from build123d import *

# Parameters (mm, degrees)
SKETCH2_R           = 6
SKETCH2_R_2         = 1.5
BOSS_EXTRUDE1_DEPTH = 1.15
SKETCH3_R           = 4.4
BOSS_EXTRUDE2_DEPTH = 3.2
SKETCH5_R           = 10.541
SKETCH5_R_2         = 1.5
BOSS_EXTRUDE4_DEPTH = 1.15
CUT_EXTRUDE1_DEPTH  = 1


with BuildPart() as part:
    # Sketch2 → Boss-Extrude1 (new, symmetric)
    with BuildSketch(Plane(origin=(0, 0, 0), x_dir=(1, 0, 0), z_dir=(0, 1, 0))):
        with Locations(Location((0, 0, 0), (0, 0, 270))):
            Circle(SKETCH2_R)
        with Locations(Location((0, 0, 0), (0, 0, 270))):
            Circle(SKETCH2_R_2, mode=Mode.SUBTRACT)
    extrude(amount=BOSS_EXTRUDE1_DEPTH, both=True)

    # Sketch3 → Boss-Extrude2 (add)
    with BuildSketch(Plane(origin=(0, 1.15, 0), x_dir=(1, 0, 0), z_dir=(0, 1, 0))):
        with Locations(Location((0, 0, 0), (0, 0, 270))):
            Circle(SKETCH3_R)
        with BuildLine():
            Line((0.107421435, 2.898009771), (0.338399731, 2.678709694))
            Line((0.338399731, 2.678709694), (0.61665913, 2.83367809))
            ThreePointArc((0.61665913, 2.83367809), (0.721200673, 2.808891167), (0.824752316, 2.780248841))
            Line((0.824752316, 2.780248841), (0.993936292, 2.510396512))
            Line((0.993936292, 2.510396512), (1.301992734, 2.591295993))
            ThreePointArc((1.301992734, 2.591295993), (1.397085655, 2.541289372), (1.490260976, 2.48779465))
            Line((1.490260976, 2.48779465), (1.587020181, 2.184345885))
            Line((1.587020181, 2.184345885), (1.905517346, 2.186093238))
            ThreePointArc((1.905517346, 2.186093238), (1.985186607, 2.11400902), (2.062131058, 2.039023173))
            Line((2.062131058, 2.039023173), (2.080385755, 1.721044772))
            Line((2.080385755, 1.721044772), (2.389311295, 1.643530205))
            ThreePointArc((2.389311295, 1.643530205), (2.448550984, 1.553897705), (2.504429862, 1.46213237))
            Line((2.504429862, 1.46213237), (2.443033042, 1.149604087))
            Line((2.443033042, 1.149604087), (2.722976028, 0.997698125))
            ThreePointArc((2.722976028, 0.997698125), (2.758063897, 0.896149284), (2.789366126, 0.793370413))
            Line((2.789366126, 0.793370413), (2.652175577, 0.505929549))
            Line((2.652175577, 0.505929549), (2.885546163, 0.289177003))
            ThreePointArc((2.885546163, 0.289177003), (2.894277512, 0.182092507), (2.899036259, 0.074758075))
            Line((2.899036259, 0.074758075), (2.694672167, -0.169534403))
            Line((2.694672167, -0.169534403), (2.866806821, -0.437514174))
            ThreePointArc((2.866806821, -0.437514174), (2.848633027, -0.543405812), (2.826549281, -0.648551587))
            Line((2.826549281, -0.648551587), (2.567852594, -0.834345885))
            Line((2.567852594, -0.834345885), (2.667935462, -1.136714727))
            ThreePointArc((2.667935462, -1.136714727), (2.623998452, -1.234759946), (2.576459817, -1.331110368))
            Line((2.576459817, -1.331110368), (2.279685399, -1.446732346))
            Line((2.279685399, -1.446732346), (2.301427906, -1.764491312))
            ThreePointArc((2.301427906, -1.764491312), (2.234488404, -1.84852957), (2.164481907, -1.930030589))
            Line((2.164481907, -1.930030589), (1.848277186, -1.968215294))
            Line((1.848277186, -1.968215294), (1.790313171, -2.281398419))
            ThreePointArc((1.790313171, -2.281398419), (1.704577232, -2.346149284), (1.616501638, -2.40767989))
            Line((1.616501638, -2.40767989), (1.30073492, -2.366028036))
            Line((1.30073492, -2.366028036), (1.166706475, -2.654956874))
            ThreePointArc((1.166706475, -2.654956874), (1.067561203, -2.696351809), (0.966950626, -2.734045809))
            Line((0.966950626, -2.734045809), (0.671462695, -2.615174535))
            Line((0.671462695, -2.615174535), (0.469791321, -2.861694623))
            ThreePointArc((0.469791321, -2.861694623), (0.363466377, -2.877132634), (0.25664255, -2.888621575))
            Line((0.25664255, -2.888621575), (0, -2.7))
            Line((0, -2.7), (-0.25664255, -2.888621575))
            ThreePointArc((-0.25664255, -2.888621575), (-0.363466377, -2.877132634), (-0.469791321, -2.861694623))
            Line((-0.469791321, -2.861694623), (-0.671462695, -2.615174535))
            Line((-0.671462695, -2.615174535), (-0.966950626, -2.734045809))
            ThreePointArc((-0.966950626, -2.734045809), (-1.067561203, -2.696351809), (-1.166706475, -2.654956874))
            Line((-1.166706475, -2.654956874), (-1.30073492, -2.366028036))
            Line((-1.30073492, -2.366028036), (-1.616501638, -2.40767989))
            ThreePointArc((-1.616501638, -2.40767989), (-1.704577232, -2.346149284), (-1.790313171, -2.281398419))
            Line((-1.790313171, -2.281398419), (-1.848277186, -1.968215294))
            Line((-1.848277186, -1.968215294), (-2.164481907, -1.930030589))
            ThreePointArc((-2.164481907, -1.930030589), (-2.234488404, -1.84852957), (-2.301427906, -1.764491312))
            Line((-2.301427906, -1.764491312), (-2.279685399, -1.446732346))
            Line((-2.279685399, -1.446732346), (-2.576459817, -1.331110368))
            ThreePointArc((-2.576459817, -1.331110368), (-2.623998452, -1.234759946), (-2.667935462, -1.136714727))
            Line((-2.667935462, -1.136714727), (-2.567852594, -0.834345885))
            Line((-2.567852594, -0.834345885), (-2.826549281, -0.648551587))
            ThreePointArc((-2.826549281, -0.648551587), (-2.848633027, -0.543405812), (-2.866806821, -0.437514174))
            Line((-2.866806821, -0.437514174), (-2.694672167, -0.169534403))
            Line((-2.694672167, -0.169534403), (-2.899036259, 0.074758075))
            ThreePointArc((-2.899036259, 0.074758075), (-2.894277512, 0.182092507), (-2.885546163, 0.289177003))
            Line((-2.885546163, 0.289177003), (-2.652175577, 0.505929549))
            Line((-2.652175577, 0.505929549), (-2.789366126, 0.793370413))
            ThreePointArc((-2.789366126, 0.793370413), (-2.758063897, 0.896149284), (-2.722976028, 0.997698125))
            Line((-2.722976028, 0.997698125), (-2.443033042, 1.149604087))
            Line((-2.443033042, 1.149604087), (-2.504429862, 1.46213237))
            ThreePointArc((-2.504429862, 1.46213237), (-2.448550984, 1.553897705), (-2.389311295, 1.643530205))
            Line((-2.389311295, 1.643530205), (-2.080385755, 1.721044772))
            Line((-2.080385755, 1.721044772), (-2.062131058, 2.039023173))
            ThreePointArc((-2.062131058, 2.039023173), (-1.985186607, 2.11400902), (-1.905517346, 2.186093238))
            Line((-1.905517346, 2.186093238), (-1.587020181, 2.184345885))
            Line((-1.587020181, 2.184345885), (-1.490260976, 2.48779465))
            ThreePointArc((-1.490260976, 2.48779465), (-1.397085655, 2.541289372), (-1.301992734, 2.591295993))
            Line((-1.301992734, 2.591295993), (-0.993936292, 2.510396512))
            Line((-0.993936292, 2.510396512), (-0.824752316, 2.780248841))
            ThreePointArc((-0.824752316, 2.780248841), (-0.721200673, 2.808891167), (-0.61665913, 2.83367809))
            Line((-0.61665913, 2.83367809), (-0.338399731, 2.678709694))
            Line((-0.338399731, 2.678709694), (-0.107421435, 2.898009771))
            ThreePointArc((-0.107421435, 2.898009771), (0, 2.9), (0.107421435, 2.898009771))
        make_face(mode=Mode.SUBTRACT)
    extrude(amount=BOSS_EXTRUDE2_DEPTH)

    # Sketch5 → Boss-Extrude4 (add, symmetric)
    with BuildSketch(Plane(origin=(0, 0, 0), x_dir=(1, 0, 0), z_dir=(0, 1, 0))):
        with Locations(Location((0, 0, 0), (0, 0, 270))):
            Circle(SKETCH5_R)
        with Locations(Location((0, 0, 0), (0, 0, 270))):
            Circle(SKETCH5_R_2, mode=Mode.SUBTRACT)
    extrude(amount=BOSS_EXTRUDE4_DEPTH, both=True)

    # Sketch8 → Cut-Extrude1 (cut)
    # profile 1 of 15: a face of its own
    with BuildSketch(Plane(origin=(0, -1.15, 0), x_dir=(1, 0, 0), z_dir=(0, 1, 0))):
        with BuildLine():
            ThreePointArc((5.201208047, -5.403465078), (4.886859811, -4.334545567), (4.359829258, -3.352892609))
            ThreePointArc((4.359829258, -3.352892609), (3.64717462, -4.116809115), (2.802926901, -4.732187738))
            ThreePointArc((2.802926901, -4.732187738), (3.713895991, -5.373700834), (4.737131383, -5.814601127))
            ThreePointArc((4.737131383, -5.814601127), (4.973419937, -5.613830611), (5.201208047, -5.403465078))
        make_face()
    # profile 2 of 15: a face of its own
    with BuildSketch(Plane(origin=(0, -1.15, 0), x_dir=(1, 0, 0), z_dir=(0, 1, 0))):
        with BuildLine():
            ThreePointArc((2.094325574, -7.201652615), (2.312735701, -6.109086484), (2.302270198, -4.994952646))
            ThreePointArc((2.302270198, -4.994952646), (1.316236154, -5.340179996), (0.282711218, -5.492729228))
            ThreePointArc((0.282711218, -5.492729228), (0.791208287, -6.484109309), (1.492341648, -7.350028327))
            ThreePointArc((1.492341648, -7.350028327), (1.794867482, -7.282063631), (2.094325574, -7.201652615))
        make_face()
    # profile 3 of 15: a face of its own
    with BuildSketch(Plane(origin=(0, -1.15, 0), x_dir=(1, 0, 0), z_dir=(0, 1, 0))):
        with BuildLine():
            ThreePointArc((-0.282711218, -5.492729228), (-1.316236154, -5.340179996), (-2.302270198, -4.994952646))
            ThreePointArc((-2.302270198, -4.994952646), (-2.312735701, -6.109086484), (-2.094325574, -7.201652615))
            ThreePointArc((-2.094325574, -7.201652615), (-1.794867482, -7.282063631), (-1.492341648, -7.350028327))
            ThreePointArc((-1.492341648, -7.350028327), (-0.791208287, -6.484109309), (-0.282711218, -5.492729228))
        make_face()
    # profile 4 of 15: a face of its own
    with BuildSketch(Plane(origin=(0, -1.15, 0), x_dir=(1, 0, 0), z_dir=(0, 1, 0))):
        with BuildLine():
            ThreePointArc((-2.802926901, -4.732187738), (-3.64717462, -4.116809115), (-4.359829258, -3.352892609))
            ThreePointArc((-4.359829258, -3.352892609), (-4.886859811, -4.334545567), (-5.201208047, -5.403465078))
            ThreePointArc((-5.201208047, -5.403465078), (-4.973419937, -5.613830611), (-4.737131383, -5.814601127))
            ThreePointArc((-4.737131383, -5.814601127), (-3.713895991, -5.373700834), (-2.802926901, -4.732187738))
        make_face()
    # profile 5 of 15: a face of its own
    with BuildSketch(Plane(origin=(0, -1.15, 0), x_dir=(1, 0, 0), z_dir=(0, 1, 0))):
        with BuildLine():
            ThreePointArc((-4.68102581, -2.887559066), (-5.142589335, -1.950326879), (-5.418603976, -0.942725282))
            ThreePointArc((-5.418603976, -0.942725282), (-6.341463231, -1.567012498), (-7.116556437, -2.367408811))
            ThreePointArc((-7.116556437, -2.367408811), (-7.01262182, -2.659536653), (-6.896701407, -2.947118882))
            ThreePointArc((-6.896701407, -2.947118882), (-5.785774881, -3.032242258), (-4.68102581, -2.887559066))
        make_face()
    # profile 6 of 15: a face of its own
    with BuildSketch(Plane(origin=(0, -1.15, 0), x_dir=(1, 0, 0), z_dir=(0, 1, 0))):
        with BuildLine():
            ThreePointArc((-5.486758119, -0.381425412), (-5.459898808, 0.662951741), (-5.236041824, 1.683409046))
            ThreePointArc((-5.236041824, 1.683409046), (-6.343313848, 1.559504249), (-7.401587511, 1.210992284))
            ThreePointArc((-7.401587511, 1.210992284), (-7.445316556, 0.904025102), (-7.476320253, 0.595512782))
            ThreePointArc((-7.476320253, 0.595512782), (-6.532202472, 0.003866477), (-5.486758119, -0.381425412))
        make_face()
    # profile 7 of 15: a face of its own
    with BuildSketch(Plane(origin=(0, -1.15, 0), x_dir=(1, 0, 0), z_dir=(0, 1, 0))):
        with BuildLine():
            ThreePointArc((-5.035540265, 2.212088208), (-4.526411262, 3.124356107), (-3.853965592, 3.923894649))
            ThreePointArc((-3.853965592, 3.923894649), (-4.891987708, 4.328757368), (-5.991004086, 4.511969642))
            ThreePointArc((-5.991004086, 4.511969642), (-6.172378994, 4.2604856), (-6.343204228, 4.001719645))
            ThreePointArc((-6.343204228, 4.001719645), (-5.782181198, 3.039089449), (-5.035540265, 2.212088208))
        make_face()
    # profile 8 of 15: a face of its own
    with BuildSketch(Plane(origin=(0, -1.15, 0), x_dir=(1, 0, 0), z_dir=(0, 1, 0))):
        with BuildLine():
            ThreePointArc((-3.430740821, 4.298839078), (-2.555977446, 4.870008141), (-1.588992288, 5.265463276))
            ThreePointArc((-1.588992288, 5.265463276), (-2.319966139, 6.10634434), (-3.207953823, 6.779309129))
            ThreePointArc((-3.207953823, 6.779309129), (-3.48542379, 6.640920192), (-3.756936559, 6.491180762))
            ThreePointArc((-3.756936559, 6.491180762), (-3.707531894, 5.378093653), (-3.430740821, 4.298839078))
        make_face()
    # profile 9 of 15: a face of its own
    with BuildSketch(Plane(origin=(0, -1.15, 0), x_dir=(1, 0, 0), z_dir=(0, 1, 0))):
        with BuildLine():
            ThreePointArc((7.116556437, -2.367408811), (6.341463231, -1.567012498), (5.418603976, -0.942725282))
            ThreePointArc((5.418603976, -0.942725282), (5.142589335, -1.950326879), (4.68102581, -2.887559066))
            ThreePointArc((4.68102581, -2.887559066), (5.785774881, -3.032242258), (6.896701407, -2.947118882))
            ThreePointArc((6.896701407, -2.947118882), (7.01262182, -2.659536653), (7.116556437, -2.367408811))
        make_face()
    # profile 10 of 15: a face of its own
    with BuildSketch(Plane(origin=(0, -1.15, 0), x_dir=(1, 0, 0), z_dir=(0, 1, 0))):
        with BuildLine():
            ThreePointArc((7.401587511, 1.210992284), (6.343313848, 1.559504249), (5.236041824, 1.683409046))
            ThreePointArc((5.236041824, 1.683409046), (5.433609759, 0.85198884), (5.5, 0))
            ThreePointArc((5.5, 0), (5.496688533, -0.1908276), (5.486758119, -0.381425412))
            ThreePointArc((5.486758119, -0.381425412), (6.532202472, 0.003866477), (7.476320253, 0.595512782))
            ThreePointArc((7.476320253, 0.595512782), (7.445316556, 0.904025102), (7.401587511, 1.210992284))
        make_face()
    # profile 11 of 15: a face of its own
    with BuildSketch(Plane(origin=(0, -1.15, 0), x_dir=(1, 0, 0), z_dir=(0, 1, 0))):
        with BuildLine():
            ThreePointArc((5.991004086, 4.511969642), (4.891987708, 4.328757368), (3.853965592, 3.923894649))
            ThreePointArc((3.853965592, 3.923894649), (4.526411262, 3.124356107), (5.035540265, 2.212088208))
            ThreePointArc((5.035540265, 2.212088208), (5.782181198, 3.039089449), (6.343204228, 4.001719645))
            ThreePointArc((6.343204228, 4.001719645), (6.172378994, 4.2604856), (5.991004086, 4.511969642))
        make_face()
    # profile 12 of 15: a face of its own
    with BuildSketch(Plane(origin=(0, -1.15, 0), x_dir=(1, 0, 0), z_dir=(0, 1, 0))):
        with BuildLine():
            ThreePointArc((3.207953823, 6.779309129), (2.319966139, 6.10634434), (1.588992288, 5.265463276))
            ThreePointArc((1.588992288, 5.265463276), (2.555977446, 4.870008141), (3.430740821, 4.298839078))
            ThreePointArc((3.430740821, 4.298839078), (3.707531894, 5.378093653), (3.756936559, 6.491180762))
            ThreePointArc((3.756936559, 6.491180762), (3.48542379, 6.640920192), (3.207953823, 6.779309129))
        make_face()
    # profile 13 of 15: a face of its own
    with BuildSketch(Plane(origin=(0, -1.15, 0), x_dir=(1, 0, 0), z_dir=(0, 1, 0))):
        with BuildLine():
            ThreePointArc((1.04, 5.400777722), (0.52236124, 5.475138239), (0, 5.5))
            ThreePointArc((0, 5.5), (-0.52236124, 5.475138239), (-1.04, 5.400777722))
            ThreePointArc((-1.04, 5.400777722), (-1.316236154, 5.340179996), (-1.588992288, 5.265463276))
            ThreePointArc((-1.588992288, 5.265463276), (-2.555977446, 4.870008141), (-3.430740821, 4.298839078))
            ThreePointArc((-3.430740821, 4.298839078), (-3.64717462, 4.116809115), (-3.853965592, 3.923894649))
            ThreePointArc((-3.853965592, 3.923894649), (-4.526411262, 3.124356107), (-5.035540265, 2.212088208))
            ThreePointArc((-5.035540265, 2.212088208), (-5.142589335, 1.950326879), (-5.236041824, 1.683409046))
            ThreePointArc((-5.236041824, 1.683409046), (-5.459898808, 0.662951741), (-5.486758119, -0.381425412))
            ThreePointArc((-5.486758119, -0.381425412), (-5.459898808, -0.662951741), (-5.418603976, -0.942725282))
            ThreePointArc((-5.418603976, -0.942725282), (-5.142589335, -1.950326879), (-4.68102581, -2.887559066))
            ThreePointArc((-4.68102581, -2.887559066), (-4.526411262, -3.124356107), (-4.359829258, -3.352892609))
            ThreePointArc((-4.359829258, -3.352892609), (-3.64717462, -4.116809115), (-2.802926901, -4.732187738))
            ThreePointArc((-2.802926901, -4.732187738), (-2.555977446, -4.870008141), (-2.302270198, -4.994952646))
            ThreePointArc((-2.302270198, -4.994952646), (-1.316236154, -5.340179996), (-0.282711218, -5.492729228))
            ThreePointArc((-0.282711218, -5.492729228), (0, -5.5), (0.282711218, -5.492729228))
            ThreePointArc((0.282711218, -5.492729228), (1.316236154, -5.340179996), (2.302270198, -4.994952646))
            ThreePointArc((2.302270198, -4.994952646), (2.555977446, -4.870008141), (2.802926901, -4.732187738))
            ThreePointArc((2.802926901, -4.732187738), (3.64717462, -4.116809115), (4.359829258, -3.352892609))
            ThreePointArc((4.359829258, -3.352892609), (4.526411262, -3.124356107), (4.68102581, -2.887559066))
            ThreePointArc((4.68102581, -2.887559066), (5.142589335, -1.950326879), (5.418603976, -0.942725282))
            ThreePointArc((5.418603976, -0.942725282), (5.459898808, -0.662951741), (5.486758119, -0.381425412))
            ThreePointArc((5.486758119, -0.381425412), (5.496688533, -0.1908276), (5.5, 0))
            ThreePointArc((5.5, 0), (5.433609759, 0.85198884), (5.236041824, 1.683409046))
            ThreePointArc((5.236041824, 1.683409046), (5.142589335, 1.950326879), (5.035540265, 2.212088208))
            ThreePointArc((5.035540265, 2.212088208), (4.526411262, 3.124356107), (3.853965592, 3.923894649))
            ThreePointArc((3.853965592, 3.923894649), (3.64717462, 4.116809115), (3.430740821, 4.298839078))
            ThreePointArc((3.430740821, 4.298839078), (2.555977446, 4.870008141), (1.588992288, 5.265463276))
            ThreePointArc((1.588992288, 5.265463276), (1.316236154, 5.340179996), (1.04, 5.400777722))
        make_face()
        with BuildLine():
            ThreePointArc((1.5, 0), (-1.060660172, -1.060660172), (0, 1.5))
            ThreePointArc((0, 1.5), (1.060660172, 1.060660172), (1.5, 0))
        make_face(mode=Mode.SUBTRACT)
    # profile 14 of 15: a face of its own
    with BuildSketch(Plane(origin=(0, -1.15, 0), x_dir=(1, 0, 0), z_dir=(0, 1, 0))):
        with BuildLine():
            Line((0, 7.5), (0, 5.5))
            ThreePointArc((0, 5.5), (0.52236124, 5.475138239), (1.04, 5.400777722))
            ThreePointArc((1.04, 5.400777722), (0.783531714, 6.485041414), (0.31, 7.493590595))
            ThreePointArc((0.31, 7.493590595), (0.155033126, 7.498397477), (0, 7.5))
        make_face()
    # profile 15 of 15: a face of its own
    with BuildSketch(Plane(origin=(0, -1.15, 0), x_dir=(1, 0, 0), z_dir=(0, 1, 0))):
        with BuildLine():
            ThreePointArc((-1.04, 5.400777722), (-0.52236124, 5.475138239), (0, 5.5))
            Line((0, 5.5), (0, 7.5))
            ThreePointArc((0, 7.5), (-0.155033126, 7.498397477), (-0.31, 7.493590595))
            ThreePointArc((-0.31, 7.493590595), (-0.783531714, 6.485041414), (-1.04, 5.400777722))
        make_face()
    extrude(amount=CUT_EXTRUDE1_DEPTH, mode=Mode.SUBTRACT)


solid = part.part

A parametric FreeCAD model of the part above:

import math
import FreeCAD as App
import Part
import Sketcher

V = App.Vector
Q = App.Units.Quantity

doc = App.newDocument("Part")
body = doc.addObject("PartDesign::Body", "Body")

sketch1 = body.newObject("Sketcher::SketchObject", "Sketch")
sketch1.AttachmentSupport = (doc.getObject("XZ_Plane"), [""])
sketch1.MapMode = "FlatFace"
sketch1.addGeometry([
    Part.Circle(V(0, 0, 0), V(0, 0, 1), 6),
    Part.Circle(V(0, 0, 0), V(0, 0, 1), 1.5),
], False)
sketch1.addConstraint([
    Sketcher.Constraint("Coincident", 0, 3, -1, 1),
    Sketcher.Constraint("Coincident", 1, 3, -1, 1),
    Sketcher.Constraint("Diameter", 0, Q("12 mm")),
    Sketcher.Constraint("Diameter", 1, Q("3 mm")),
])
pad1 = body.newObject("PartDesign::Pad", "Pad")
pad1.Profile = sketch1
pad1.Length = 2.3
pad1.Midplane = True

sketch2 = body.newObject("Sketcher::SketchObject", "Sketch001")
sketch2.AttachmentSupport = (doc.getObject("XZ_Plane"), [""])
sketch2.MapMode = "FlatFace"
sketch2.AttachmentOffset = App.Placement(V(0, 0, -1.15), App.Rotation())
sketch2.addGeometry([
    Part.Circle(V(0, 0, 0), V(0, 0, 1), 4.4),
    Part.ArcOfCircle(Part.Circle(V(0, 0, 0), V(0, 0, 1), 2.9), math.radians(-92.12), math.radians(-87.88)),
    Part.LineSegment(V(0.11, -2.9, 0), V(0.34, -2.68, 0)),
    Part.LineSegment(V(0.34, -2.68, 0), V(0.62, -2.83, 0)),
    Part.ArcOfCircle(Part.Circle(V(0, 0, 0), V(0, 0, 1), 2.9), math.radians(-77.72), math.radians(-73.48)),
    Part.LineSegment(V(0.82, -2.78, 0), V(0.99, -2.51, 0)),
    Part.LineSegment(V(0.99, -2.51, 0), V(1.3, -2.59, 0)),
    Part.ArcOfCircle(Part.Circle(V(0, 0, 0), V(0, 0, 1), 2.9), math.radians(-63.32), math.radians(-59.08)),
    Part.LineSegment(V(1.49, -2.49, 0), V(1.59, -2.18, 0)),
    Part.LineSegment(V(1.59, -2.18, 0), V(1.91, -2.19, 0)),
    Part.ArcOfCircle(Part.Circle(V(0, 0, 0), V(0, 0, 1), 2.9), math.radians(-48.92), math.radians(-44.68)),
    Part.LineSegment(V(2.06, -2.04, 0), V(2.08, -1.72, 0)),
    Part.LineSegment(V(2.08, -1.72, 0), V(2.39, -1.64, 0)),
    Part.ArcOfCircle(Part.Circle(V(0, 0, 0), V(0, 0, 1), 2.9), math.radians(-34.52), math.radians(-30.28)),
    Part.LineSegment(V(2.5, -1.46, 0), V(2.44, -1.15, 0)),
    Part.LineSegment(V(2.44, -1.15, 0), V(2.72, -1, 0)),
    Part.ArcOfCircle(Part.Circle(V(0, 0, 0), V(0, 0, 1), 2.9), math.radians(-20.12), math.radians(-15.88)),
    Part.LineSegment(V(2.79, -0.79, 0), V(2.65, -0.51, 0)),
    Part.LineSegment(V(2.65, -0.51, 0), V(2.89, -0.29, 0)),
    Part.ArcOfCircle(Part.Circle(V(0, 0, 0), V(0, 0, 1), 2.9), math.radians(-5.72), math.radians(-1.48)),
    Part.LineSegment(V(2.9, -0.07, 0), V(2.69, 0.17, 0)),
    Part.LineSegment(V(2.69, 0.17, 0), V(2.87, 0.44, 0)),
    Part.ArcOfCircle(Part.Circle(V(0, 0, 0), V(0, 0, 1), 2.9), math.radians(8.68), math.radians(12.92)),
    Part.LineSegment(V(2.83, 0.65, 0), V(2.57, 0.83, 0)),
    Part.LineSegment(V(2.57, 0.83, 0), V(2.67, 1.14, 0)),
    Part.ArcOfCircle(Part.Circle(V(0, 0, 0), V(0, 0, 1), 2.9), math.radians(23.08), math.radians(27.32)),
    Part.LineSegment(V(2.58, 1.33, 0), V(2.28, 1.45, 0)),
    Part.LineSegment(V(2.28, 1.45, 0), V(2.3, 1.76, 0)),
    Part.ArcOfCircle(Part.Circle(V(0, 0, 0), V(0, 0, 1), 2.9), math.radians(37.48), math.radians(41.72)),
    Part.LineSegment(V(2.16, 1.93, 0), V(1.85, 1.97, 0)),
    Part.LineSegment(V(1.85, 1.97, 0), V(1.79, 2.28, 0)),
    Part.ArcOfCircle(Part.Circle(V(0, 0, 0), V(0, 0, 1), 2.9), math.radians(51.88), math.radians(56.12)),
    Part.LineSegment(V(1.62, 2.41, 0), V(1.3, 2.37, 0)),
    Part.LineSegment(V(1.3, 2.37, 0), V(1.17, 2.65, 0)),
    Part.ArcOfCircle(Part.Circle(V(0, 0, 0), V(0, 0, 1), 2.9), math.radians(66.28), math.radians(70.52)),
    Part.LineSegment(V(0.97, 2.73, 0), V(0.67, 2.62, 0)),
    Part.LineSegment(V(0.67, 2.62, 0), V(0.47, 2.86, 0)),
    Part.ArcOfCircle(Part.Circle(V(0, 0, 0), V(0, 0, 1), 2.9), math.radians(80.68), math.radians(84.92)),
    Part.LineSegment(V(0.26, 2.89, 0), V(0, 2.7, 0)),
    Part.LineSegment(V(0, 2.7, 0), V(-0.26, 2.89, 0)),
    Part.ArcOfCircle(Part.Circle(V(0, 0, 0), V(0, 0, 1), 2.9), math.radians(95.08), math.radians(99.32)),
    Part.LineSegment(V(-0.47, 2.86, 0), V(-0.67, 2.62, 0)),
    Part.LineSegment(V(-0.67, 2.62, 0), V(-0.97, 2.73, 0)),
    Part.ArcOfCircle(Part.Circle(V(0, 0, 0), V(0, 0, 1), 2.9), math.radians(109.48), math.radians(113.72)),
    Part.LineSegment(V(-1.17, 2.65, 0), V(-1.3, 2.37, 0)),
    Part.LineSegment(V(-1.3, 2.37, 0), V(-1.62, 2.41, 0)),
    Part.ArcOfCircle(Part.Circle(V(0, 0, 0), V(0, 0, 1), 2.9), math.radians(123.88), math.radians(128.12)),
    Part.LineSegment(V(-1.79, 2.28, 0), V(-1.85, 1.97, 0)),
    Part.LineSegment(V(-1.85, 1.97, 0), V(-2.16, 1.93, 0)),
    Part.ArcOfCircle(Part.Circle(V(0, 0, 0), V(0, 0, 1), 2.9), math.radians(138.28), math.radians(142.52)),
    Part.LineSegment(V(-2.3, 1.76, 0), V(-2.28, 1.45, 0)),
    Part.LineSegment(V(-2.28, 1.45, 0), V(-2.58, 1.33, 0)),
    Part.ArcOfCircle(Part.Circle(V(0, 0, 0), V(0, 0, 1), 2.9), math.radians(152.68), math.radians(156.92)),
    Part.LineSegment(V(-2.67, 1.14, 0), V(-2.57, 0.83, 0)),
    Part.LineSegment(V(-2.57, 0.83, 0), V(-2.83, 0.65, 0)),
    Part.ArcOfCircle(Part.Circle(V(0, 0, 0), V(0, 0, 1), 2.9), math.radians(167.08), math.radians(171.32)),
    Part.LineSegment(V(-2.87, 0.44, 0), V(-2.69, 0.17, 0)),
    Part.LineSegment(V(-2.69, 0.17, 0), V(-2.9, -0.07, 0)),
    Part.ArcOfCircle(Part.Circle(V(0, 0, 0), V(0, 0, 1), 2.9), math.radians(-178.52), math.radians(-174.28)),
    Part.LineSegment(V(-2.89, -0.29, 0), V(-2.65, -0.51, 0)),
    Part.LineSegment(V(-2.65, -0.51, 0), V(-2.79, -0.79, 0)),
    Part.ArcOfCircle(Part.Circle(V(0, 0, 0), V(0, 0, 1), 2.9), math.radians(-164.12), math.radians(-159.88)),
    Part.LineSegment(V(-2.72, -1, 0), V(-2.44, -1.15, 0)),
    Part.LineSegment(V(-2.44, -1.15, 0), V(-2.5, -1.46, 0)),
    Part.ArcOfCircle(Part.Circle(V(0, 0, 0), V(0, 0, 1), 2.9), math.radians(-149.72), math.radians(-145.48)),
    Part.LineSegment(V(-2.39, -1.64, 0), V(-2.08, -1.72, 0)),
    Part.LineSegment(V(-2.08, -1.72, 0), V(-2.06, -2.04, 0)),
    Part.ArcOfCircle(Part.Circle(V(0, 0, 0), V(0, 0, 1), 2.9), math.radians(-135.32), math.radians(-131.08)),
    Part.LineSegment(V(-1.91, -2.19, 0), V(-1.59, -2.18, 0)),
    Part.LineSegment(V(-1.59, -2.18, 0), V(-1.49, -2.49, 0)),
    Part.ArcOfCircle(Part.Circle(V(0, 0, 0), V(0, 0, 1), 2.9), math.radians(-120.92), math.radians(-116.68)),
    Part.LineSegment(V(-1.3, -2.59, 0), V(-0.99, -2.51, 0)),
    Part.LineSegment(V(-0.99, -2.51, 0), V(-0.82, -2.78, 0)),
    Part.ArcOfCircle(Part.Circle(V(0, 0, 0), V(0, 0, 1), 2.9), math.radians(-106.52), math.radians(-102.28)),
    Part.LineSegment(V(-0.62, -2.83, 0), V(-0.34, -2.68, 0)),
    Part.LineSegment(V(-0.34, -2.68, 0), V(-0.11, -2.9, 0)),
], False)
sketch2.addConstraint([
    Sketcher.Constraint("Coincident", 1, 2, 2, 1),
    Sketcher.Constraint("Coincident", 2, 2, 3, 1),
    Sketcher.Constraint("Coincident", 3, 2, 4, 1),
    Sketcher.Constraint("Coincident", 4, 2, 5, 1),
    Sketcher.Constraint("Coincident", 5, 2, 6, 1),
    Sketcher.Constraint("Coincident", 6, 2, 7, 1),
    Sketcher.Constraint("Coincident", 7, 2, 8, 1),
    Sketcher.Constraint("Coincident", 8, 2, 9, 1),
    Sketcher.Constraint("Coincident", 9, 2, 10, 1),
    Sketcher.Constraint("Coincident", 10, 2, 11, 1),
    Sketcher.Constraint("Coincident", 11, 2, 12, 1),
    Sketcher.Constraint("Coincident", 12, 2, 13, 1),
    Sketcher.Constraint("Coincident", 13, 2, 14, 1),
    Sketcher.Constraint("Coincident", 14, 2, 15, 1),
    Sketcher.Constraint("Coincident", 15, 2, 16, 1),
    Sketcher.Constraint("Coincident", 16, 2, 17, 1),
    Sketcher.Constraint("Coincident", 17, 2, 18, 1),
    Sketcher.Constraint("Coincident", 18, 2, 19, 1),
    Sketcher.Constraint("Coincident", 19, 2, 20, 1),
    Sketcher.Constraint("Coincident", 20, 2, 21, 1),
    Sketcher.Constraint("Coincident", 21, 2, 22, 1),
    Sketcher.Constraint("Coincident", 22, 2, 23, 1),
    Sketcher.Constraint("Coincident", 23, 2, 24, 1),
    Sketcher.Constraint("Coincident", 24, 2, 25, 1),
    Sketcher.Constraint("Coincident", 25, 2, 26, 1),
    Sketcher.Constraint("Coincident", 26, 2, 27, 1),
    Sketcher.Constraint("Coincident", 27, 2, 28, 1),
    Sketcher.Constraint("Coincident", 28, 2, 29, 1),
    Sketcher.Constraint("Coincident", 29, 2, 30, 1),
    Sketcher.Constraint("Coincident", 30, 2, 31, 1),
    Sketcher.Constraint("Coincident", 31, 2, 32, 1),
    Sketcher.Constraint("Coincident", 32, 2, 33, 1),
    Sketcher.Constraint("Coincident", 33, 2, 34, 1),
    Sketcher.Constraint("Coincident", 34, 2, 35, 1),
    Sketcher.Constraint("Coincident", 35, 2, 36, 1),
    Sketcher.Constraint("Coincident", 36, 2, 37, 1),
    Sketcher.Constraint("Coincident", 37, 2, 38, 1),
    Sketcher.Constraint("Coincident", 38, 2, 39, 1),
    Sketcher.Constraint("Coincident", 39, 2, 40, 1),
    Sketcher.Constraint("Coincident", 40, 2, 41, 1),
    Sketcher.Constraint("Coincident", 41, 2, 42, 1),
    Sketcher.Constraint("Coincident", 42, 2, 43, 1),
    Sketcher.Constraint("Coincident", 43, 2, 44, 1),
    Sketcher.Constraint("Coincident", 44, 2, 45, 1),
    Sketcher.Constraint("Coincident", 45, 2, 46, 1),
    Sketcher.Constraint("Coincident", 46, 2, 47, 1),
    Sketcher.Constraint("Coincident", 47, 2, 48, 1),
    Sketcher.Constraint("Coincident", 48, 2, 49, 1),
    Sketcher.Constraint("Coincident", 49, 2, 50, 1),
    Sketcher.Constraint("Coincident", 50, 2, 51, 1),
    Sketcher.Constraint("Coincident", 51, 2, 52, 1),
    Sketcher.Constraint("Coincident", 52, 2, 53, 1),
    Sketcher.Constraint("Coincident", 53, 2, 54, 1),
    Sketcher.Constraint("Coincident", 54, 2, 55, 1),
    Sketcher.Constraint("Coincident", 55, 2, 56, 1),
    Sketcher.Constraint("Coincident", 56, 2, 57, 1),
    Sketcher.Constraint("Coincident", 57, 2, 58, 1),
    Sketcher.Constraint("Coincident", 58, 2, 59, 1),
    Sketcher.Constraint("Coincident", 59, 2, 60, 1),
    Sketcher.Constraint("Coincident", 60, 2, 61, 1),
    Sketcher.Constraint("Coincident", 61, 2, 62, 1),
    Sketcher.Constraint("Coincident", 62, 2, 63, 1),
    Sketcher.Constraint("Coincident", 63, 2, 64, 1),
    Sketcher.Constraint("Coincident", 64, 2, 65, 1),
    Sketcher.Constraint("Coincident", 65, 2, 66, 1),
    Sketcher.Constraint("Coincident", 66, 2, 67, 1),
    Sketcher.Constraint("Coincident", 67, 2, 68, 1),
    Sketcher.Constraint("Coincident", 68, 2, 69, 1),
    Sketcher.Constraint("Coincident", 69, 2, 70, 1),
    Sketcher.Constraint("Coincident", 70, 2, 71, 1),
    Sketcher.Constraint("Coincident", 71, 2, 72, 1),
    Sketcher.Constraint("Coincident", 72, 2, 73, 1),
    Sketcher.Constraint("Coincident", 73, 2, 74, 1),
    Sketcher.Constraint("Coincident", 74, 2, 75, 1),
    Sketcher.Constraint("Coincident", 75, 2, 1, 1),
    Sketcher.Constraint("Coincident", 0, 3, -1, 1),
    Sketcher.Constraint("Coincident", 1, 3, -1, 1),
    Sketcher.Constraint("Coincident", 4, 3, -1, 1),
    Sketcher.Constraint("Coincident", 7, 3, -1, 1),
    Sketcher.Constraint("Coincident", 10, 3, -1, 1),
    Sketcher.Constraint("Coincident", 13, 3, -1, 1),
    Sketcher.Constraint("Coincident", 16, 3, -1, 1),
    Sketcher.Constraint("Coincident", 19, 3, -1, 1),
    Sketcher.Constraint("Coincident", 22, 3, -1, 1),
    Sketcher.Constraint("Coincident", 25, 3, -1, 1),
    Sketcher.Constraint("Coincident", 28, 3, -1, 1),
    Sketcher.Constraint("Coincident", 31, 3, -1, 1),
    Sketcher.Constraint("Coincident", 34, 3, -1, 1),
    Sketcher.Constraint("Coincident", 37, 3, -1, 1),
    Sketcher.Constraint("Coincident", 40, 3, -1, 1),
    Sketcher.Constraint("Coincident", 43, 3, -1, 1),
    Sketcher.Constraint("Coincident", 46, 3, -1, 1),
    Sketcher.Constraint("Coincident", 49, 3, -1, 1),
    Sketcher.Constraint("Coincident", 52, 3, -1, 1),
    Sketcher.Constraint("Coincident", 55, 3, -1, 1),
    Sketcher.Constraint("Coincident", 58, 3, -1, 1),
    Sketcher.Constraint("Coincident", 61, 3, -1, 1),
    Sketcher.Constraint("Coincident", 64, 3, -1, 1),
    Sketcher.Constraint("Coincident", 67, 3, -1, 1),
    Sketcher.Constraint("Coincident", 70, 3, -1, 1),
    Sketcher.Constraint("Coincident", 73, 3, -1, 1),
    Sketcher.Constraint("Equal", 1, 4),
    Sketcher.Constraint("Equal", 4, 7),
    Sketcher.Constraint("Equal", 7, 10),
    Sketcher.Constraint("Equal", 10, 13),
    Sketcher.Constraint("Equal", 13, 16),
    Sketcher.Constraint("Equal", 16, 19),
    Sketcher.Constraint("Equal", 19, 22),
    Sketcher.Constraint("Equal", 22, 25),
    Sketcher.Constraint("Equal", 25, 28),
    Sketcher.Constraint("Equal", 28, 31),
    Sketcher.Constraint("Equal", 31, 34),
    Sketcher.Constraint("Equal", 34, 37),
    Sketcher.Constraint("Equal", 37, 40),
    Sketcher.Constraint("Equal", 40, 43),
    Sketcher.Constraint("Equal", 43, 46),
    Sketcher.Constraint("Equal", 46, 49),
    Sketcher.Constraint("Equal", 49, 52),
    Sketcher.Constraint("Equal", 52, 55),
    Sketcher.Constraint("Equal", 55, 58),
    Sketcher.Constraint("Equal", 58, 61),
    Sketcher.Constraint("Equal", 61, 64),
    Sketcher.Constraint("Equal", 64, 67),
    Sketcher.Constraint("Equal", 67, 70),
    Sketcher.Constraint("Equal", 70, 73),
    Sketcher.Constraint("Symmetric", 35, 2, 41, 2, -2),
    Sketcher.Constraint("Symmetric", 32, 2, 44, 2, -2),
    Sketcher.Constraint("Symmetric", 29, 2, 47, 2, -2),
    Sketcher.Constraint("Symmetric", 26, 2, 50, 2, -2),
    Sketcher.Constraint("Symmetric", 23, 2, 53, 2, -2),
    Sketcher.Constraint("Symmetric", 20, 2, 56, 2, -2),
    Sketcher.Constraint("Symmetric", 17, 2, 59, 2, -2),
    Sketcher.Constraint("Symmetric", 14, 2, 62, 2, -2),
    Sketcher.Constraint("Symmetric", 11, 2, 65, 2, -2),
    Sketcher.Constraint("Symmetric", 8, 2, 68, 2, -2),
    Sketcher.Constraint("Symmetric", 5, 2, 71, 2, -2),
    Sketcher.Constraint("Symmetric", 2, 2, 74, 2, -2),
    Sketcher.Constraint("PointOnObject", 38, 2, -2),
    Sketcher.Constraint("Horizontal", 37, 2, 39, 2),
    Sketcher.Constraint("Horizontal", 36, 2, 40, 2),
    Sketcher.Constraint("Horizontal", 34, 2, 42, 2),
    Sketcher.Constraint("Horizontal", 33, 2, 43, 2),
    Sketcher.Constraint("Horizontal", 31, 2, 45, 2),
    Sketcher.Constraint("Horizontal", 30, 2, 46, 2),
    Sketcher.Constraint("Horizontal", 28, 2, 48, 2),
    Sketcher.Constraint("Horizontal", 27, 2, 49, 2),
    Sketcher.Constraint("Horizontal", 25, 2, 51, 2),
    Sketcher.Constraint("Horizontal", 24, 2, 52, 2),
    Sketcher.Constraint("Horizontal", 22, 2, 54, 2),
    Sketcher.Constraint("Horizontal", 21, 2, 55, 2),
    Sketcher.Constraint("Horizontal", 19, 2, 57, 2),
    Sketcher.Constraint("Horizontal", 18, 2, 58, 2),
    Sketcher.Constraint("Horizontal", 16, 2, 60, 2),
    Sketcher.Constraint("Horizontal", 15, 2, 61, 2),
    Sketcher.Constraint("Horizontal", 13, 2, 63, 2),
    Sketcher.Constraint("Horizontal", 12, 2, 64, 2),
    Sketcher.Constraint("Horizontal", 10, 2, 66, 2),
    Sketcher.Constraint("Horizontal", 9, 2, 67, 2),
    Sketcher.Constraint("Horizontal", 7, 2, 69, 2),
    Sketcher.Constraint("Horizontal", 6, 2, 70, 2),
    Sketcher.Constraint("Horizontal", 4, 2, 72, 2),
    Sketcher.Constraint("Horizontal", 3, 2, 73, 2),
    Sketcher.Constraint("Horizontal", 1, 2, 75, 2),
    Sketcher.Constraint("Equal", 2, 3),
    Sketcher.Constraint("Equal", 3, 5),
    Sketcher.Constraint("Equal", 5, 6),
    Sketcher.Constraint("Equal", 6, 8),
    Sketcher.Constraint("Equal", 8, 9),
    Sketcher.Constraint("Equal", 9, 11),
    Sketcher.Constraint("Equal", 11, 12),
    Sketcher.Constraint("Equal", 12, 14),
    Sketcher.Constraint("Equal", 14, 15),
    Sketcher.Constraint("Equal", 15, 17),
    Sketcher.Constraint("Equal", 17, 18),
    Sketcher.Constraint("Equal", 18, 20),
    Sketcher.Constraint("Equal", 20, 21),
    Sketcher.Constraint("Equal", 21, 23),
    Sketcher.Constraint("Equal", 23, 24),
    Sketcher.Constraint("Equal", 24, 26),
    Sketcher.Constraint("Equal", 26, 27),
    Sketcher.Constraint("Equal", 27, 29),
    Sketcher.Constraint("Equal", 29, 30),
    Sketcher.Constraint("Equal", 30, 32),
    Sketcher.Constraint("Equal", 32, 33),
    Sketcher.Constraint("Equal", 33, 35),
    Sketcher.Constraint("Equal", 35, 36),
    Sketcher.Constraint("Equal", 36, 38),
    Sketcher.Constraint("Diameter", 0, Q("8.8 mm")),
    Sketcher.Constraint("Radius", 1, Q("2.899999 mm")),
    Sketcher.Constraint("DistanceY", -1, 1, 38, 2, Q("2.7 mm")),
    Sketcher.Constraint("Distance", 2, Q("0.318502 mm")),
    Sketcher.Constraint("DistanceX", -1, 1, 2, 2, Q("0.3384 mm")),
    Sketcher.Constraint("DistanceY", 15, 2, -1, 1, Q("0.997698 mm")),
    Sketcher.Constraint("DistanceY", -1, 1, 30, 2, Q("2.281398 mm")),
    Sketcher.Constraint("DistanceX", -1, 1, 31, 2, Q("1.616502 mm")),
    Sketcher.Constraint("DistanceX", -1, 1, 1, 2, Q("0.107421 mm")),
    Sketcher.Constraint("DistanceY", 4, 2, -1, 1, Q("2.780249 mm")),
    Sketcher.Constraint("DistanceX", -1, 1, 7, 2, Q("1.490261 mm")),
    Sketcher.Constraint("DistanceX", -1, 1, 8, 2, Q("1.58702 mm")),
    Sketcher.Constraint("DistanceX", -1, 1, 10, 2, Q("2.062131 mm")),
    Sketcher.Constraint("DistanceX", -1, 1, 12, 2, Q("2.389311 mm")),
    Sketcher.Constraint("DistanceX", -1, 1, 13, 2, Q("2.50443 mm")),
    Sketcher.Constraint("DistanceY", 16, 2, -1, 1, Q("0.79337 mm")),
    Sketcher.Constraint("DistanceY", 17, 2, -1, 1, Q("0.50593 mm")),
    Sketcher.Constraint("DistanceY", 19, 2, -1, 1, Q("0.074758 mm")),
    Sketcher.Constraint("DistanceX", -1, 1, 22, 2, Q("2.826549 mm")),
    Sketcher.Constraint("DistanceX", -1, 1, 25, 2, Q("2.57646 mm")),
    Sketcher.Constraint("DistanceY", -1, 1, 27, 2, Q("1.764491 mm")),
    Sketcher.Constraint("DistanceX", -1, 1, 28, 2, Q("2.164482 mm")),
    Sketcher.Constraint("DistanceY", -1, 1, 32, 2, Q("2.366028 mm")),
    Sketcher.Constraint("DistanceX", -1, 1, 34, 2, Q("0.966951 mm")),
    Sketcher.Constraint("DistanceX", -1, 1, 36, 2, Q("0.469791 mm")),
    Sketcher.Constraint("DistanceX", -1, 1, 5, 2, Q("0.993936 mm")),
    Sketcher.Constraint("DistanceX", -1, 1, 20, 2, Q("2.694672 mm")),
    Sketcher.Constraint("DistanceX", -1, 1, 23, 2, Q("2.567853 mm")),
])
pad2 = body.newObject("PartDesign::Pad", "Pad001")
pad2.Profile = sketch2
pad2.Length = 3.2
pad2.Reversed = True

sketch3 = body.newObject("Sketcher::SketchObject", "Sketch002")
sketch3.AttachmentSupport = (doc.getObject("XZ_Plane"), [""])
sketch3.MapMode = "FlatFace"
sketch3.addGeometry([
    Part.Circle(V(0, 0, 0), V(0, 0, 1), 10.5),
    Part.Circle(V(0, 0, 0), V(0, 0, 1), 1.5),
], False)
sketch3.addConstraint([
    Sketcher.Constraint("Coincident", 0, 3, -1, 1),
    Sketcher.Constraint("Coincident", 1, 3, -1, 1),
    Sketcher.Constraint("Diameter", 1, Q("3 mm")),
    Sketcher.Constraint("Diameter", 0, Q("21.082 mm")),
])
pad3 = body.newObject("PartDesign::Pad", "Pad002")
pad3.Profile = sketch3
pad3.Length = 2.3
pad3.Midplane = True

sketch4 = body.newObject("Sketcher::SketchObject", "Sketch003")
sketch4.AttachmentSupport = (doc.getObject("XZ_Plane"), [""])
sketch4.MapMode = "FlatFace"
sketch4.AttachmentOffset = App.Placement(V(0, 0, 1.15), App.Rotation())
sketch4.addGeometry([
    Part.ArcOfCircle(Part.Circle(V(-0.11, 6.38, 0), V(0, 0, 1), 5.4), math.radians(-34), math.radians(-10)),
    Part.ArcOfCircle(Part.Circle(V(0, 0, 0), V(0, 0, 1), 5.5), math.radians(31.67), math.radians(37.56)),
    Part.ArcOfCircle(Part.Circle(V(5.93, -2.37, 0), V(0, 0, 1), 5.4), math.radians(80), math.radians(103)),
    Part.ArcOfCircle(Part.Circle(V(0, 0, 0), V(0, 0, 1), 7.5), math.radians(18.4), math.radians(23.14)),
    Part.ArcOfCircle(Part.Circle(V(2.87, 5.7, 0), V(0, 0, 1), 5.4), math.radians(-62), math.radians(-38)),
    Part.ArcOfCircle(Part.Circle(V(0, 0, 0), V(0, 0, 1), 5.5), math.radians(3.98), math.radians(9.87)),
    Part.ArcOfCircle(Part.Circle(V(4.15, -4.85, 0), V(0, 0, 1), 5.4), math.radians(52), math.radians(76)),
    Part.ArcOfCircle(Part.Circle(V(0, 0, 0), V(0, 0, 1), 7.5), math.radians(-9.29), math.radians(-4.55)),
    Part.ArcOfCircle(Part.Circle(V(5.19, 3.72, 0), V(0, 0, 1), 5.4), math.radians(-90), math.radians(-66)),
    Part.ArcOfCircle(Part.Circle(V(0, 0, 0), V(0, 0, 1), 5.5), math.radians(-23.72), math.radians(-17.82)),
    Part.ArcOfCircle(Part.Circle(V(1.42, -6.22, 0), V(0, 0, 1), 5.4), math.radians(24), math.radians(48)),
    Part.ArcOfCircle(Part.Circle(V(0, 0, 0), V(0, 0, 1), 7.5), math.radians(-36.98), math.radians(-32.25)),
    Part.ArcOfCircle(Part.Circle(V(6.32, 0.88, 0), V(0, 0, 1), 5.4), math.radians(-117), math.radians(-94)),
    Part.ArcOfCircle(Part.Circle(V(0, 0, 0), V(0, 0, 1), 5.5), math.radians(-51.41), math.radians(-45.52)),
    Part.ArcOfCircle(Part.Circle(V(-1.63, -6.17, 0), V(0, 0, 1), 5.4), math.radians(-3), math.radians(20)),
    Part.ArcOfCircle(Part.Circle(V(0, 0, 0), V(0, 0, 1), 7.5), math.radians(-64.68), math.radians(-59.94)),
    Part.ArcOfCircle(Part.Circle(V(6.01, -2.16, 0), V(0, 0, 1), 5.4), math.radians(-145), math.radians(-121)),
    Part.ArcOfCircle(Part.Circle(V(0, 0, 0), V(0, 0, 1), 5.5), math.radians(-79.1), math.radians(-73.21)),
    Part.ArcOfCircle(Part.Circle(V(-4.32, -4.71, 0), V(0, 0, 1), 5.4), math.radians(-31), math.radians(-7)),
    Part.ArcOfCircle(Part.Circle(V(0, 0, 0), V(0, 0, 1), 7.5), math.radians(-90), math.radians(-87.63)),
    Part.ArcOfCircle(Part.Circle(V(0, 0, 0), V(0, 0, 1), 7.5), math.radians(-92.37), math.radians(-90)),
    Part.ArcOfCircle(Part.Circle(V(4.32, -4.71, 0), V(0, 0, 1), 5.4), math.radians(-173), math.radians(-149)),
    Part.ArcOfCircle(Part.Circle(V(0, 0, 0), V(0, 0, 1), 5.5), math.radians(-106.79), math.radians(-100.9)),
    Part.ArcOfCircle(Part.Circle(V(-6.01, -2.16, 0), V(0, 0, 1), 5.4), math.radians(-59), math.radians(-35)),
    Part.ArcOfCircle(Part.Circle(V(0, 0, 0), V(0, 0, 1), 7.5), math.radians(-120.06), math.radians(-115.32)),
    Part.ArcOfCircle(Part.Circle(V(1.63, -6.17, 0), V(0, 0, 1), 5.4), math.radians(160), math.radians(183)),
    Part.ArcOfCircle(Part.Circle(V(0, 0, 0), V(0, 0, 1), 5.5), math.radians(-134.48), math.radians(-128.59)),
    Part.ArcOfCircle(Part.Circle(V(-6.32, 0.88, 0), V(0, 0, 1), 5.4), math.radians(-86), math.radians(-63)),
    Part.ArcOfCircle(Part.Circle(V(0, 0, 0), V(0, 0, 1), 7.5), math.radians(-147.75), math.radians(-143.02)),
    Part.ArcOfCircle(Part.Circle(V(-1.42, -6.22, 0), V(0, 0, 1), 5.4), math.radians(132), math.radians(156)),
    Part.ArcOfCircle(Part.Circle(V(0, 0, 0), V(0, 0, 1), 5.5), math.radians(-162.18), math.radians(-156.28)),
    Part.ArcOfCircle(Part.Circle(V(-5.19, 3.72, 0), V(0, 0, 1), 5.4), math.radians(-114), math.radians(-90)),
    Part.ArcOfCircle(Part.Circle(V(0, 0, 0), V(0, 0, 1), 7.5), math.radians(-175.45), math.radians(-170.71)),
    Part.ArcOfCircle(Part.Circle(V(-4.15, -4.85, 0), V(0, 0, 1), 5.4), math.radians(104), math.radians(128)),
    Part.ArcOfCircle(Part.Circle(V(0, 0, 0), V(0, 0, 1), 5.5), math.radians(170.13), math.radians(176.02)),
    Part.ArcOfCircle(Part.Circle(V(-2.87, 5.7, 0), V(0, 0, 1), 5.4), math.radians(-142), math.radians(-118)),
    Part.ArcOfCircle(Part.Circle(V(0, 0, 0), V(0, 0, 1), 7.5), math.radians(156.86), math.radians(161.6)),
    Part.ArcOfCircle(Part.Circle(V(-5.93, -2.37, 0), V(0, 0, 1), 5.4), math.radians(77), math.radians(100)),
    Part.ArcOfCircle(Part.Circle(V(0, 0, 0), V(0, 0, 1), 5.5), math.radians(142.44), math.radians(148.33)),
    Part.ArcOfCircle(Part.Circle(V(0.11, 6.38, 0), V(0, 0, 1), 5.4), math.radians(-170), math.radians(-146)),
    Part.ArcOfCircle(Part.Circle(V(0, 0, 0), V(0, 0, 1), 7.5), math.radians(129.17), math.radians(133.91)),
    Part.ArcOfCircle(Part.Circle(V(-6.35, 0.66, 0), V(0, 0, 1), 5.4), math.radians(49), math.radians(73)),
    Part.ArcOfCircle(Part.Circle(V(0, 0, 0), V(0, 0, 1), 5.5), math.radians(114.75), math.radians(120.64)),
    Part.ArcOfCircle(Part.Circle(V(3.06, 5.6, 0), V(0, 0, 1), 5.4), math.radians(163), math.radians(186)),
    Part.ArcOfCircle(Part.Circle(V(0, 0, 0), V(0, 0, 1), 7.5), math.radians(101.48), math.radians(106.22)),
    Part.ArcOfCircle(Part.Circle(V(-5.32, 3.54, 0), V(0, 0, 1), 5.4), math.radians(21), math.radians(45)),
    Part.ArcOfCircle(Part.Circle(V(0, 0, 0), V(0, 0, 1), 5.5), math.radians(87.05), math.radians(92.95)),
    Part.ArcOfCircle(Part.Circle(V(5.32, 3.54, 0), V(0, 0, 1), 5.4), math.radians(135), math.radians(159)),
    Part.ArcOfCircle(Part.Circle(V(0, 0, 0), V(0, 0, 1), 7.5), math.radians(73.78), math.radians(78.52)),
    Part.ArcOfCircle(Part.Circle(V(-3.06, 5.6, 0), V(0, 0, 1), 5.4), math.radians(-6), math.radians(17)),
    Part.ArcOfCircle(Part.Circle(V(0, 0, 0), V(0, 0, 1), 5.5), math.radians(59.36), math.radians(65.25)),
    Part.ArcOfCircle(Part.Circle(V(6.35, 0.66, 0), V(0, 0, 1), 5.4), math.radians(107), math.radians(131)),
    Part.ArcOfCircle(Part.Circle(V(0, 0, 0), V(0, 0, 1), 7.5), math.radians(46.09), math.radians(50.83)),
    Part.ArcOfCircle(Part.Circle(V(0, 0, 0), V(0, 0, 1), 1.5), math.radians(0), math.radians(270)),
    Part.ArcOfCircle(Part.Circle(V(0, 0, 0), V(0, 0, 1), 1.5), math.radians(-90), math.radians(0)),
], False)
sketch4.addConstraint([
    Sketcher.Constraint("Coincident", 0, 1, 1, 2),
    Sketcher.Constraint("Coincident", 1, 1, 2, 2),
    Sketcher.Constraint("Coincident", 2, 1, 3, 2),
    Sketcher.Constraint("Coincident", 3, 1, 4, 2),
    Sketcher.Constraint("Coincident", 4, 1, 5, 2),
    Sketcher.Constraint("Coincident", 5, 1, 6, 2),
    Sketcher.Constraint("Coincident", 6, 1, 7, 2),
    Sketcher.Constraint("Coincident", 7, 1, 8, 2),
    Sketcher.Constraint("Coincident", 8, 1, 9, 2),
    Sketcher.Constraint("Coincident", 9, 1, 10, 2),
    Sketcher.Constraint("Coincident", 10, 1, 11, 2),
    Sketcher.Constraint("Coincident", 11, 1, 12, 2),
    Sketcher.Constraint("Coincident", 12, 1, 13, 2),
    Sketcher.Constraint("Coincident", 13, 1, 14, 2),
    Sketcher.Constraint("Coincident", 14, 1, 15, 2),
    Sketcher.Constraint("Coincident", 15, 1, 16, 2),
    Sketcher.Constraint("Coincident", 16, 1, 17, 2),
    Sketcher.Constraint("Coincident", 17, 1, 18, 2),
    Sketcher.Constraint("Coincident", 18, 1, 19, 2),
    Sketcher.Constraint("Tangent", 19, 1, 20, 2),
    Sketcher.Constraint("Coincident", 20, 1, 21, 2),
    Sketcher.Constraint("Coincident", 21, 1, 22, 2),
    Sketcher.Constraint("Coincident", 22, 1, 23, 2),
    Sketcher.Constraint("Coincident", 23, 1, 24, 2),
    Sketcher.Constraint("Coincident", 24, 1, 25, 2),
    Sketcher.Constraint("Coincident", 25, 1, 26, 2),
    Sketcher.Constraint("Coincident", 26, 1, 27, 2),
    Sketcher.Constraint("Coincident", 27, 1, 28, 2),
    Sketcher.Constraint("Coincident", 28, 1, 29, 2),
    Sketcher.Constraint("Coincident", 29, 1, 30, 2),
    Sketcher.Constraint("Coincident", 30, 1, 31, 2),
    Sketcher.Constraint("Coincident", 31, 1, 32, 2),
    Sketcher.Constraint("Coincident", 32, 1, 33, 2),
    Sketcher.Constraint("Coincident", 33, 1, 34, 2),
    Sketcher.Constraint("Coincident", 34, 1, 35, 2),
    Sketcher.Constraint("Coincident", 35, 1, 36, 2),
    Sketcher.Constraint("Coincident", 36, 1, 37, 2),
    Sketcher.Constraint("Coincident", 37, 1, 38, 2),
    Sketcher.Constraint("Coincident", 38, 1, 39, 2),
    Sketcher.Constraint("Coincident", 39, 1, 40, 2),
    Sketcher.Constraint("Coincident", 40, 1, 41, 2),
    Sketcher.Constraint("Coincident", 41, 1, 42, 2),
    Sketcher.Constraint("Coincident", 42, 1, 43, 2),
    Sketcher.Constraint("Coincident", 43, 1, 44, 2),
    Sketcher.Constraint("Coincident", 44, 1, 45, 2),
    Sketcher.Constraint("Coincident", 45, 1, 46, 2),
    Sketcher.Constraint("Coincident", 46, 1, 47, 2),
    Sketcher.Constraint("Coincident", 47, 1, 48, 2),
    Sketcher.Constraint("Coincident", 48, 1, 49, 2),
    Sketcher.Constraint("Coincident", 49, 1, 50, 2),
    Sketcher.Constraint("Coincident", 50, 1, 51, 2),
    Sketcher.Constraint("Coincident", 51, 1, 52, 2),
    Sketcher.Constraint("Coincident", 52, 1, 0, 2),
    Sketcher.Constraint("Tangent", 53, 1, 54, 2),
    Sketcher.Constraint("Coincident", 54, 1, 53, 2),
    Sketcher.Constraint("Coincident", 1, 3, -1, 1),
    Sketcher.Constraint("Coincident", 3, 3, -1, 1),
    Sketcher.Constraint("Coincident", 5, 3, -1, 1),
    Sketcher.Constraint("Coincident", 7, 3, -1, 1),
    Sketcher.Constraint("Coincident", 9, 3, -1, 1),
    Sketcher.Constraint("Coincident", 11, 3, -1, 1),
    Sketcher.Constraint("Coincident", 13, 3, -1, 1),
    Sketcher.Constraint("Coincident", 15, 3, -1, 1),
    Sketcher.Constraint("Coincident", 17, 3, -1, 1),
    Sketcher.Constraint("Coincident", 19, 3, -1, 1),
    Sketcher.Constraint("Coincident", 22, 3, -1, 1),
    Sketcher.Constraint("Coincident", 24, 3, -1, 1),
    Sketcher.Constraint("Coincident", 26, 3, -1, 1),
    Sketcher.Constraint("Coincident", 28, 3, -1, 1),
    Sketcher.Constraint("Coincident", 30, 3, -1, 1),
    Sketcher.Constraint("Coincident", 32, 3, -1, 1),
    Sketcher.Constraint("Coincident", 34, 3, -1, 1),
    Sketcher.Constraint("Coincident", 36, 3, -1, 1),
    Sketcher.Constraint("Coincident", 38, 3, -1, 1),
    Sketcher.Constraint("Coincident", 40, 3, -1, 1),
    Sketcher.Constraint("Coincident", 42, 3, -1, 1),
    Sketcher.Constraint("Coincident", 44, 3, -1, 1),
    Sketcher.Constraint("Coincident", 46, 3, -1, 1),
    Sketcher.Constraint("Coincident", 48, 3, -1, 1),
    Sketcher.Constraint("Coincident", 50, 3, -1, 1),
    Sketcher.Constraint("Coincident", 52, 3, -1, 1),
    Sketcher.Constraint("Coincident", 53, 3, -1, 1),
    Sketcher.Constraint("Equal", 0, 2),
    Sketcher.Constraint("Equal", 2, 4),
    Sketcher.Constraint("Equal", 1, 5),
    Sketcher.Constraint("Equal", 4, 6),
    Sketcher.Constraint("Equal", 3, 7),
    Sketcher.Constraint("Equal", 6, 8),
    Sketcher.Constraint("Equal", 5, 9),
    Sketcher.Constraint("Equal", 8, 10),
    Sketcher.Constraint("Equal", 7, 11),
    Sketcher.Constraint("Equal", 10, 12),
    Sketcher.Constraint("Equal", 9, 13),
    Sketcher.Constraint("Equal", 12, 14),
    Sketcher.Constraint("Equal", 11, 15),
    Sketcher.Constraint("Equal", 14, 16),
    Sketcher.Constraint("Equal", 13, 17),
    Sketcher.Constraint("Equal", 16, 18),
    Sketcher.Constraint("Equal", 19, 20),
    Sketcher.Constraint("Equal", 18, 21),
    Sketcher.Constraint("Equal", 17, 22),
    Sketcher.Constraint("Equal", 21, 23),
    Sketcher.Constraint("Equal", 15, 24),
    Sketcher.Constraint("Equal", 23, 25),
    Sketcher.Constraint("Equal", 22, 26),
    Sketcher.Constraint("Equal", 25, 27),
    Sketcher.Constraint("Equal", 24, 28),
    Sketcher.Constraint("Equal", 27, 29),
    Sketcher.Constraint("Equal", 26, 30),
    Sketcher.Constraint("Equal", 29, 31),
    Sketcher.Constraint("Equal", 28, 32),
    Sketcher.Constraint("Equal", 31, 33),
    Sketcher.Constraint("Equal", 30, 34),
    Sketcher.Constraint("Equal", 33, 35),
    Sketcher.Constraint("Equal", 32, 36),
    Sketcher.Constraint("Equal", 35, 37),
    Sketcher.Constraint("Equal", 34, 38),
    Sketcher.Constraint("Equal", 37, 39),
    Sketcher.Constraint("Equal", 36, 40),
    Sketcher.Constraint("Equal", 39, 41),
    Sketcher.Constraint("Equal", 38, 42),
    Sketcher.Constraint("Equal", 41, 43),
    Sketcher.Constraint("Equal", 40, 44),
    Sketcher.Constraint("Equal", 43, 45),
    Sketcher.Constraint("Equal", 42, 46),
    Sketcher.Constraint("Equal", 45, 47),
    Sketcher.Constraint("Equal", 44, 48),
    Sketcher.Constraint("Equal", 47, 49),
    Sketcher.Constraint("Equal", 46, 50),
    Sketcher.Constraint("Equal", 49, 51),
    Sketcher.Constraint("Equal", 48, 52),
    Sketcher.Constraint("Symmetric", 18, 3, 21, 3, -2),
    Sketcher.Constraint("Symmetric", 16, 3, 23, 3, -2),
    Sketcher.Constraint("Symmetric", 14, 3, 25, 3, -2),
    Sketcher.Constraint("Symmetric", 12, 3, 27, 3, -2),
    Sketcher.Constraint("Symmetric", 10, 3, 29, 3, -2),
    Sketcher.Constraint("Symmetric", 8, 3, 31, 3, -2),
    Sketcher.Constraint("Symmetric", 6, 3, 33, 3, -2),
    Sketcher.Constraint("Symmetric", 4, 3, 35, 3, -2),
    Sketcher.Constraint("Symmetric", 2, 3, 37, 3, -2),
    Sketcher.Constraint("Symmetric", 0, 3, 39, 3, -2),
    Sketcher.Constraint("Symmetric", 45, 3, 47, 3, -2),
    Sketcher.Constraint("Symmetric", 43, 3, 49, 3, -2),
    Sketcher.Constraint("Symmetric", 41, 3, 51, 3, -2),
    Sketcher.Constraint("PointOnObject", 19, 1, -2),
    Sketcher.Constraint("PointOnObject", 53, 1, -1),
    Sketcher.Constraint("PointOnObject", 54, 1, -2),
    Sketcher.Constraint("Radius", 0, Q("5.4 mm")),
    Sketcher.Constraint("Radius", 1, Q("5.5 mm")),
    Sketcher.Constraint("Radius", 3, Q("7.5 mm")),
    Sketcher.Constraint("Radius", 53, Q("1.5 mm")),
    Sketcher.Constraint("DistanceY", 19, 1, -1, 1, Q("7.5 mm")),
    Sketcher.Constraint("DistanceX", -1, 1, 17, 1, Q("1.04 mm")),
    Sketcher.Constraint("DistanceX", -1, 1, 18, 1, Q("0.31 mm")),
    Sketcher.Constraint("DistanceY", -1, 1, 41, 3, Q("0.661399 mm")),
    Sketcher.Constraint("DistanceX", -1, 1, 2, 1, Q("6.896701 mm")),
    Sketcher.Constraint("DistanceY", -1, 1, 40, 1, Q("5.814601 mm")),
    Sketcher.Constraint("DistanceX", 0, 3, -1, 1, Q("0.10895 mm")),
    Sketcher.Constraint("DistanceX", -1, 1, 2, 3, Q("5.93088 mm")),
    Sketcher.Constraint("DistanceX", -1, 1, 6, 3, Q("4.152088 mm")),
    Sketcher.Constraint("DistanceY", 10, 3, -1, 1, Q("6.224951 mm")),
    Sketcher.Constraint("DistanceY", -1, 1, 12, 3, Q("0.877709 mm")),
    Sketcher.Constraint("DistanceX", 14, 3, -1, 1, Q("1.63367 mm")),
    Sketcher.Constraint("DistanceX", -1, 1, 16, 3, Q("6.008149 mm")),
    Sketcher.Constraint("DistanceY", 16, 3, -1, 1, Q("2.162069 mm")),
    Sketcher.Constraint("DistanceY", -1, 1, 43, 3, Q("5.602471 mm")),
    Sketcher.Constraint("DistanceX", -1, 1, 0, 1, Q("4.359829 mm")),
    Sketcher.Constraint("DistanceY", -1, 1, 3, 1, Q("2.367409 mm")),
    Sketcher.Constraint("DistanceX", -1, 1, 5, 1, Q("5.486758 mm")),
    Sketcher.Constraint("DistanceX", -1, 1, 8, 1, Q("5.236042 mm")),
    Sketcher.Constraint("DistanceX", -1, 1, 9, 1, Q("5.03554 mm")),
    Sketcher.Constraint("DistanceY", 11, 1, -1, 1, Q("4.51197 mm")),
    Sketcher.Constraint("DistanceX", -1, 1, 13, 1, Q("3.430741 mm")),
    Sketcher.Constraint("DistanceX", 42, 1, -1, 1, Q("2.30227 mm")),
    Sketcher.Constraint("DistanceX", 44, 1, -1, 1, Q("1.492342 mm")),
    Sketcher.Constraint("DistanceX", 45, 1, -1, 1, Q("0.282711 mm")),
    Sketcher.Constraint("DistanceX", -1, 1, 4, 3, Q("2.870507 mm")),
    Sketcher.Constraint("DistanceX", -1, 1, 8, 3, Q("5.192365 mm")),
])
pocket1 = body.newObject("PartDesign::Pocket", "Pocket")
pocket1.Profile = sketch4
pocket1.Length = 1

doc.recompute()
